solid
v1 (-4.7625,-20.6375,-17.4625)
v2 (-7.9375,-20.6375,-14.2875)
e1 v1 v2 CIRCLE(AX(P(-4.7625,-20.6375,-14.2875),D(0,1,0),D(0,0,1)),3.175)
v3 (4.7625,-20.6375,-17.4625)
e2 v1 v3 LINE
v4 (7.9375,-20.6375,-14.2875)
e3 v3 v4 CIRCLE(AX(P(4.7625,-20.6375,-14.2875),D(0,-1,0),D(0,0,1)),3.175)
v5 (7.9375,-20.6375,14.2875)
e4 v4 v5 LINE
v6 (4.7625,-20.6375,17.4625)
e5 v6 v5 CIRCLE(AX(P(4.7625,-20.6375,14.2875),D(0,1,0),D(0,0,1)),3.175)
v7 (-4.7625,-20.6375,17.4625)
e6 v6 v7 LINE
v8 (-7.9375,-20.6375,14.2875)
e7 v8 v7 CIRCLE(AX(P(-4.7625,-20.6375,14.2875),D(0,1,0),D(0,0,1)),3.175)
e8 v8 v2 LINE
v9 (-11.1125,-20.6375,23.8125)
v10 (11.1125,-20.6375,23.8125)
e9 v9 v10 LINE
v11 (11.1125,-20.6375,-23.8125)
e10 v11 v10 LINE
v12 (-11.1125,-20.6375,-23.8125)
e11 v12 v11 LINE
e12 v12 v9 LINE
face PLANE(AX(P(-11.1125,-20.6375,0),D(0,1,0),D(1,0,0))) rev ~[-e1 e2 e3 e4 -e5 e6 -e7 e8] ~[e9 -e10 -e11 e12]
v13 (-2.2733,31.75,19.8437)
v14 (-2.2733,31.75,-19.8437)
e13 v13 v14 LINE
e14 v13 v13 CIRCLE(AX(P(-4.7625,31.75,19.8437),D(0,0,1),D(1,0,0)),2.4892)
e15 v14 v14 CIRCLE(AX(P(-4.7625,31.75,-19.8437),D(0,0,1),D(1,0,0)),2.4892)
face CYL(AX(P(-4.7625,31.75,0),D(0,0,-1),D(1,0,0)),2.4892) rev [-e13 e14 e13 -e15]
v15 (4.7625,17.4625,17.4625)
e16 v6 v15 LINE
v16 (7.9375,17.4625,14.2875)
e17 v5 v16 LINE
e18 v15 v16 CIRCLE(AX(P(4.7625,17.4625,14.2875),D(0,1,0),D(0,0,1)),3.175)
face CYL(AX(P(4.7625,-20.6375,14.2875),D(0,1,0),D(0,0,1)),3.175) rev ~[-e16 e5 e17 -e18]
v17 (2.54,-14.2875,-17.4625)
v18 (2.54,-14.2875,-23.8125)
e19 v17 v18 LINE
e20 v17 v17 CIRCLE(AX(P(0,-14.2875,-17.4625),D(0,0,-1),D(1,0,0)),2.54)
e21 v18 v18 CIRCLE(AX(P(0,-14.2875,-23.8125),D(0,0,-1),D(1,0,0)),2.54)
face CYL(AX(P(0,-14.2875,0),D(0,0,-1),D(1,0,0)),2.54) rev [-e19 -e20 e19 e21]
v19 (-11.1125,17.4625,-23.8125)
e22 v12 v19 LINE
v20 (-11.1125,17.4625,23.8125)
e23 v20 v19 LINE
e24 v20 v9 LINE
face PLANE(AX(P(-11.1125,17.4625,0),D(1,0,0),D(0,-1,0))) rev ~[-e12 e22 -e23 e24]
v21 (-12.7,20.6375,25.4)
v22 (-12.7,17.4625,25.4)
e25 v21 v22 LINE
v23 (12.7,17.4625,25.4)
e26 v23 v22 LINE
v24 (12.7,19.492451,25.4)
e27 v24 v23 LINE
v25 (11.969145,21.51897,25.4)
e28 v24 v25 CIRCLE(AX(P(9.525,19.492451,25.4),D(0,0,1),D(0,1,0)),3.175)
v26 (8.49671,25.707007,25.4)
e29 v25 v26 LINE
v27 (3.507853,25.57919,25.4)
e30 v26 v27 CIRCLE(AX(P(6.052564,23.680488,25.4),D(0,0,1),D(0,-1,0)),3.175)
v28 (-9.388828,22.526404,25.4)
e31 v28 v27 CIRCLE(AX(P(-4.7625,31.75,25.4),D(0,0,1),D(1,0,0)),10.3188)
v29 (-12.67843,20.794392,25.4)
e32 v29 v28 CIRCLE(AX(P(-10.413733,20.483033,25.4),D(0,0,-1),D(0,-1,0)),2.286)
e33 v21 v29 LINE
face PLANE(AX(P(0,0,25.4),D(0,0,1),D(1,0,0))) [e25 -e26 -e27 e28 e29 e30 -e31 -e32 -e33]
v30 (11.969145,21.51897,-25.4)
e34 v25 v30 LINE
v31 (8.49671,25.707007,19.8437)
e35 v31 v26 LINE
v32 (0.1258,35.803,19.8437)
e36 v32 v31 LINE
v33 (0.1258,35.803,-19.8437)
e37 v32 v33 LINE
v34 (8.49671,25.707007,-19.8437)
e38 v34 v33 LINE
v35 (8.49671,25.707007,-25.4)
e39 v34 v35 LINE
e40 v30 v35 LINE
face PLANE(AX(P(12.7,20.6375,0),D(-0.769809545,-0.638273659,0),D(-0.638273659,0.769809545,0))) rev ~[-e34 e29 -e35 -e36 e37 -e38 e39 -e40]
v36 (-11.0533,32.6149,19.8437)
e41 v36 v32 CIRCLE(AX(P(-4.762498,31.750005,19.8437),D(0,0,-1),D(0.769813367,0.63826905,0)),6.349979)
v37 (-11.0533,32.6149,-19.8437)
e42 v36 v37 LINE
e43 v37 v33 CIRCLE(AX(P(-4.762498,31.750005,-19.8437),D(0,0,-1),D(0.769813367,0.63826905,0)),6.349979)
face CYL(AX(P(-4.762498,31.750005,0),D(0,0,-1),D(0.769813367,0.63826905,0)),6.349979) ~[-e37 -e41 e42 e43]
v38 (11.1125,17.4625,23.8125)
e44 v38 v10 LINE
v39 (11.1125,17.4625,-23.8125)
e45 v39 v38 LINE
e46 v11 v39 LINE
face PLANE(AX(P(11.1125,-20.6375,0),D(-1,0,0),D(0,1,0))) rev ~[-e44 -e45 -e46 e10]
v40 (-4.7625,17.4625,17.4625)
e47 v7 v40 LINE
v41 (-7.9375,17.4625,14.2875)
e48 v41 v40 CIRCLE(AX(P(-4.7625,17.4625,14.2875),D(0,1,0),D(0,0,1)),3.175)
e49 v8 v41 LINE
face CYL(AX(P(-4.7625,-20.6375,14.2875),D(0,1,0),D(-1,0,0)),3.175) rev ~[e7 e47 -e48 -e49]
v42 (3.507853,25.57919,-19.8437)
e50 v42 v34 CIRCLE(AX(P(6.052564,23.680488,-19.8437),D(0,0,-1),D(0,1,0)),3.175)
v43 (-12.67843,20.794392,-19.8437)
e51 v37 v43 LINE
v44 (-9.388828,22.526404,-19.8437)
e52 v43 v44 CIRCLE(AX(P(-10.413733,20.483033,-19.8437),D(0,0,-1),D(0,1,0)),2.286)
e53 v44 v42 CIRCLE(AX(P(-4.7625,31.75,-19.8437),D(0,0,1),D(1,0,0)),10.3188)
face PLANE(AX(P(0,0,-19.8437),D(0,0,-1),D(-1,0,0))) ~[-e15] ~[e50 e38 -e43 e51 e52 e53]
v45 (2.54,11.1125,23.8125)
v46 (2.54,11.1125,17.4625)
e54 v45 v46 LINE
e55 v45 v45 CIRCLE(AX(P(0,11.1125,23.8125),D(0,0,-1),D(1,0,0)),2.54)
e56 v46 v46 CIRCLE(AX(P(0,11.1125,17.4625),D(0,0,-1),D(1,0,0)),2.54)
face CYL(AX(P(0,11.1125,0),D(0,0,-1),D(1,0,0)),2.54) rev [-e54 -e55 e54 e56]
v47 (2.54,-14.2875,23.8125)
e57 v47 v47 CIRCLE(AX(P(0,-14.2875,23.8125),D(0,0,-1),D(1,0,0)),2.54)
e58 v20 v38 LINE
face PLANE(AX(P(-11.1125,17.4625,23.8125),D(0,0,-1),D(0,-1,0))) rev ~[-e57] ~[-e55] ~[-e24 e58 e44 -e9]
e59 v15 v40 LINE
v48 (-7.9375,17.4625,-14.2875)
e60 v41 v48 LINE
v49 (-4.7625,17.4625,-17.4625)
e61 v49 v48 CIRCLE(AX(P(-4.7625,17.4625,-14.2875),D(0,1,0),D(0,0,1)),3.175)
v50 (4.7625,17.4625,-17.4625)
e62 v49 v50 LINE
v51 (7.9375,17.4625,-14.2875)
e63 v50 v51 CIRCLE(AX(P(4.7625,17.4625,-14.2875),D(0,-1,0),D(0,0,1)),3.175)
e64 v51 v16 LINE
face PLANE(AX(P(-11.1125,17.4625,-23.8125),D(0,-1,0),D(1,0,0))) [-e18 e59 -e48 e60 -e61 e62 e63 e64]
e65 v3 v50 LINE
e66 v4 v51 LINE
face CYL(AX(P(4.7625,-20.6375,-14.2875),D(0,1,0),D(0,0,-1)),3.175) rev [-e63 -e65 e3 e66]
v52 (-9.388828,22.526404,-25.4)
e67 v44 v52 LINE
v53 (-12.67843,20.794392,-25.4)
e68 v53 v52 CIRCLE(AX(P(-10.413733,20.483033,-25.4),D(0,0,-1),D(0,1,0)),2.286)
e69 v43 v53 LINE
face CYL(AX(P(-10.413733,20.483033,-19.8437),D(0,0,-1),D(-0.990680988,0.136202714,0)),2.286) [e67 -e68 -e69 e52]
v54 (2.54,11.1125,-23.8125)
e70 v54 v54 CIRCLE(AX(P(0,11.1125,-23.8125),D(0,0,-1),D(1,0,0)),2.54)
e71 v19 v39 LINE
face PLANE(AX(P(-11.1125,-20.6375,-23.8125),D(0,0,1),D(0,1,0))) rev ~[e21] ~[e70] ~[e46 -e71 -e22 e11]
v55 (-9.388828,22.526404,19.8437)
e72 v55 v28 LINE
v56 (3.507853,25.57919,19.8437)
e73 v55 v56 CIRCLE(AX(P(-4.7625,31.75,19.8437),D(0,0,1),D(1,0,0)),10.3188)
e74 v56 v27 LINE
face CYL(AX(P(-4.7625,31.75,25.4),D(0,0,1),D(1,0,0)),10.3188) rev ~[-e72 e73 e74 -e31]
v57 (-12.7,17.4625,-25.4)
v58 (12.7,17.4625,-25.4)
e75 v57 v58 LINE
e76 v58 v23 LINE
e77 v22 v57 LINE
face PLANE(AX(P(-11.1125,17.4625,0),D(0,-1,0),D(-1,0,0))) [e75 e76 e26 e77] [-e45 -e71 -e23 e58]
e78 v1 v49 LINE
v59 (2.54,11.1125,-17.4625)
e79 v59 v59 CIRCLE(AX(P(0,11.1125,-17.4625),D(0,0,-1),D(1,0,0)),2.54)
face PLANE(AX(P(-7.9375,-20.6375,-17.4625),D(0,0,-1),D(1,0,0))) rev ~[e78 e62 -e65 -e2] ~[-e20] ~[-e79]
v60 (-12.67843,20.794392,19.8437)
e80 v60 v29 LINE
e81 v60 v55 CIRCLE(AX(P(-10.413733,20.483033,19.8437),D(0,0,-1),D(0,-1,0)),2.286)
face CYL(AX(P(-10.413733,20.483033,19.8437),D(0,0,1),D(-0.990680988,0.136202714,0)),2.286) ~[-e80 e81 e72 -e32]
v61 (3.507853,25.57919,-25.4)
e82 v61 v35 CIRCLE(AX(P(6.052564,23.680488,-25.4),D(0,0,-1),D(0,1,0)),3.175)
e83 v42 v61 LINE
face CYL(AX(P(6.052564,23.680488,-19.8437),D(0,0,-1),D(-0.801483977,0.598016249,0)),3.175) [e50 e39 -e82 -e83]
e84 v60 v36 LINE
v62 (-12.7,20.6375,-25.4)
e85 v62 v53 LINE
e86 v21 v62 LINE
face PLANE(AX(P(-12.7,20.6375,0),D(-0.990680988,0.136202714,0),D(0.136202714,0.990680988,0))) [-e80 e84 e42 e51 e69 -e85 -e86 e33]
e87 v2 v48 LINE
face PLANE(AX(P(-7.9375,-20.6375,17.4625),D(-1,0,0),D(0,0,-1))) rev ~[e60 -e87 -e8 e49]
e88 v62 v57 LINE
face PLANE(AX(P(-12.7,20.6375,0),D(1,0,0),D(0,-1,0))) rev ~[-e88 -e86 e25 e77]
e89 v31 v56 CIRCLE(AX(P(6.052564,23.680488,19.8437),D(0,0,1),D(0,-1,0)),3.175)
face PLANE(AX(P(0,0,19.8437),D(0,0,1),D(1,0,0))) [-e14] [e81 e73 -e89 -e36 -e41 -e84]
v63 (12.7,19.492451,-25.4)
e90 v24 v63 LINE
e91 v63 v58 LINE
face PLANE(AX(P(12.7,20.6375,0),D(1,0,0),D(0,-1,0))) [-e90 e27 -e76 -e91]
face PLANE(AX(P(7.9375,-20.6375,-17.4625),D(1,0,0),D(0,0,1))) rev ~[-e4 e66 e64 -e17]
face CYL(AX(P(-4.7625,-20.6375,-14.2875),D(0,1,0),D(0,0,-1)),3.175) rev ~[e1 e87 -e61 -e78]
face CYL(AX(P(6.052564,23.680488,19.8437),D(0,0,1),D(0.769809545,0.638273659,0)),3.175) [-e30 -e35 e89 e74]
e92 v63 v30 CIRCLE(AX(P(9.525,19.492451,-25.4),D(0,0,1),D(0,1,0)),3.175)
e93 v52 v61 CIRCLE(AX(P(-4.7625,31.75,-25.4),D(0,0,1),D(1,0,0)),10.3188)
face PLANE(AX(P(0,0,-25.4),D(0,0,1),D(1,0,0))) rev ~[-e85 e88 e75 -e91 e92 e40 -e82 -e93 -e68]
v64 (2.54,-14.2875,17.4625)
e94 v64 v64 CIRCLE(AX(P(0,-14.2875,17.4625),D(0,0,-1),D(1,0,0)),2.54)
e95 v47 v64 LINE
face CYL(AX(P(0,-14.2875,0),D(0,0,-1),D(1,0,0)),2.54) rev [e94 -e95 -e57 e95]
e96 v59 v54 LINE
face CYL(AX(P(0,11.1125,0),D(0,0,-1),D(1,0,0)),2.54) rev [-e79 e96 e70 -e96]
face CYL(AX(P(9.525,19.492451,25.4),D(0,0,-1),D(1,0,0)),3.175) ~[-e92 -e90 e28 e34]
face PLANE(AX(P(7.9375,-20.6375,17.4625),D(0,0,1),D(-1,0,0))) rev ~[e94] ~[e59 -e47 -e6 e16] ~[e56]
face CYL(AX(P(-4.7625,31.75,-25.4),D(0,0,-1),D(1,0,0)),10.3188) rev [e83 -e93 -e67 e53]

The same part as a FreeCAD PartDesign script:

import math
import FreeCAD as App
import Part
import Sketcher
Q = App.Units.Quantity


def edges_at(feature, points):
    """Names of the edges that pass closest to the given points."""
    edges = feature.Shape.Edges
    near = lambda p: min(range(len(edges)), key=lambda i: edges[i].distToShape(Part.Vertex(*p))[0])
    return sorted({f"Edge{near(p) + 1}" for p in points})

doc = App.newDocument("Part")
body = doc.addObject("PartDesign::Body", "Body")

# Sketch on XY plane
sketch1 = body.newObject("Sketcher::SketchObject", "Sketch")
sketch1.AttachmentSupport = (doc.getObject("XY_Plane"), [""])
sketch1.MapMode = "FlatFace"
sketch1.addGeometry([
    Part.LineSegment(App.Vector(-11.1125, 17.4625, 0), App.Vector(-11.1125, -20.6375, 0)),  # 0
    Part.LineSegment(App.Vector(-11.1125, -20.6375, 0), App.Vector(11.1125, -20.6375, 0)),  # 1
    Part.LineSegment(App.Vector(11.1125, -20.6375, 0), App.Vector(11.1125, 17.4625, 0)),  # 2
    Part.LineSegment(App.Vector(11.1125, 17.4625, 0), App.Vector(12.7, 17.4625, 0)),  # 3
    Part.LineSegment(App.Vector(12.7, 17.4625, 0), App.Vector(12.7, 20.6375, 0)),  # 4
    Part.LineSegment(App.Vector(12.7, 20.6375, 0), App.Vector(0.1258, 35.803, 0)),  # 5
    Part.ArcOfCircle(Part.Circle(App.Vector(-4.7625, 31.75, 0), App.Vector(0, 0, 1), 6.349983), math.radians(39.662895), math.radians(172.171683)),  # 6
    Part.LineSegment(App.Vector(-11.0533, 32.6149, 0), App.Vector(-12.7, 20.6375, 0)),  # 7
    Part.LineSegment(App.Vector(-12.7, 20.6375, 0), App.Vector(-12.7, 17.4625, 0)),  # 8
    Part.LineSegment(App.Vector(-12.7, 17.4625, 0), App.Vector(-11.1125, 17.4625, 0)),  # 9
    Part.Circle(App.Vector(0, -14.2875, 0), App.Vector(0, 0, 1), 2.54),  # 10
    Part.Circle(App.Vector(0, 11.1125, 0), App.Vector(0, 0, 1), 2.54),  # 11
    Part.Circle(App.Vector(-4.7625, 31.75, 0), App.Vector(0, 0, 1), 2.4892),  # 12
], False)
sketch1.addConstraint([
    Sketcher.Constraint("Coincident", 0, 2, 1, 1),
    Sketcher.Constraint("Coincident", 1, 2, 2, 1),
    Sketcher.Constraint("Coincident", 2, 2, 3, 1),
    Sketcher.Constraint("Coincident", 3, 2, 4, 1),
    Sketcher.Constraint("Coincident", 4, 2, 5, 1),
    Sketcher.Constraint("Tangent", 5, 2, 6, 1),
    Sketcher.Constraint("Tangent", 6, 2, 7, 1),
    Sketcher.Constraint("Coincident", 7, 2, 8, 1),
    Sketcher.Constraint("Coincident", 8, 2, 9, 1),
    Sketcher.Constraint("Coincident", 9, 2, 0, 1),
    Sketcher.Constraint("Vertical", 0),
    Sketcher.Constraint("Horizontal", 1),
    Sketcher.Constraint("Vertical", 2),
    Sketcher.Constraint("Horizontal", 3),
    Sketcher.Constraint("Vertical", 4),
    Sketcher.Constraint("Vertical", 8),
    Sketcher.Constraint("Horizontal", 9),
    Sketcher.Constraint("Coincident", 12, 3, 6, 3),
    Sketcher.Constraint("Equal", 10, 11),
    Sketcher.Constraint("Symmetric", 4, 2, 7, 2, -2),
    Sketcher.Constraint("Symmetric", 2, 2, 9, 2, -2),
    Sketcher.Constraint("PointOnObject", 10, 3, -2),
    Sketcher.Constraint("PointOnObject", 11, 3, -2),
    Sketcher.Constraint("Diameter", 10, Q("0.2 in")),
    Sketcher.Constraint("Radius", 6, Q("0.25 in")),
    Sketcher.Constraint("Diameter", 12, Q("0.196 in")),
    Sketcher.Constraint("DistanceY", 10, 3, 11, 3, Q("1 in")),
    Sketcher.Constraint("DistanceX", -1, 1, 3, 2, Q("0.5 in")),
    Sketcher.Constraint("DistanceX", 3, 1, 3, 2, Q("0.0625 in")),
    Sketcher.Constraint("DistanceY", 4, 1, 4, 2, Q("0.125 in")),
    Sketcher.Constraint("DistanceY", 0, 2, 10, 3, Q("0.25 in")),
    Sketcher.Constraint("DistanceX", 0, 2, 6, 3, Q("0.25 in")),
    Sketcher.Constraint("DistanceY", 11, 3, 2, 2, Q("0.25 in")),
    Sketcher.Constraint("DistanceY", -1, 1, 11, 3, Q("0.4375 in")),
    Sketcher.Constraint("DistanceY", 4, 2, 6, 3, Q("0.4375 in")),
])
pad1 = body.newObject("PartDesign::Pad", "Pad")
pad1.Profile = sketch1
pad1.Length = Q("2 in")
pad1.Midplane = True

# Sketch on YZ plane
sketch2 = body.newObject("Sketcher::SketchObject", "Sketch001")
sketch2.AttachmentSupport = (doc.getObject("YZ_Plane"), [""])
sketch2.MapMode = "FlatFace"
sketch2.AttachmentOffset = App.Placement(App.Vector(0, 0, -0.4375 * 25.4), App.Rotation())
sketch2.addGeometry([
    Part.LineSegment(App.Vector(17.4625, -25.4, 0), App.Vector(-20.6375, -25.4, 0)),  # 0
    Part.LineSegment(App.Vector(-20.6375, -25.4, 0), App.Vector(-20.6375, -23.8125, 0)),  # 1
    Part.LineSegment(App.Vector(-20.6375, -23.8125, 0), App.Vector(17.4625, -23.8125, 0)),  # 2
    Part.LineSegment(App.Vector(17.4625, -23.8125, 0), App.Vector(17.4625, -25.4, 0)),  # 3
    Part.LineSegment(App.Vector(17.4625, 23.8125, 0), App.Vector(-20.6375, 23.8125, 0)),  # 4
    Part.LineSegment(App.Vector(-20.6375, 23.8125, 0), App.Vector(-20.6375, 25.4, 0)),  # 5
    Part.LineSegment(App.Vector(-20.6375, 25.4, 0), App.Vector(17.4625, 25.4, 0)),  # 6
    Part.LineSegment(App.Vector(17.4625, 25.4, 0), App.Vector(17.4625, 23.8125, 0)),  # 7
], False)
sketch2.addConstraint([
    Sketcher.Constraint("Coincident", 0, 2, 1, 1),
    Sketcher.Constraint("Coincident", 1, 2, 2, 1),
    Sketcher.Constraint("Coincident", 2, 2, 3, 1),
    Sketcher.Constraint("Coincident", 3, 2, 0, 1),
    Sketcher.Constraint("Coincident", 4, 2, 5, 1),
    Sketcher.Constraint("Coincident", 5, 2, 6, 1),
    Sketcher.Constraint("Coincident", 6, 2, 7, 1),
    Sketcher.Constraint("Coincident", 7, 2, 4, 1),
    Sketcher.Constraint("Horizontal", 0),
    Sketcher.Constraint("Vertical", 1),
    Sketcher.Constraint("Horizontal", 2),
    Sketcher.Constraint("Vertical", 3),
    Sketcher.Constraint("Horizontal", 4),
    Sketcher.Constraint("Vertical", 5),
    Sketcher.Constraint("Horizontal", 6),
    Sketcher.Constraint("Vertical", 7),
    Sketcher.Constraint("Symmetric", 1, 2, 4, 2, -1),
    Sketcher.Constraint("Symmetric", 3, 2, 6, 2, -1),
    Sketcher.Constraint("DistanceY", 1, 1, 1, 2, Q("0.0625 in")),
    Sketcher.Constraint("DistanceX", 0, 2, 0, 1, Q("1.5 in")),
    Sketcher.Constraint("DistanceY", 0, 2, -1, 1, Q("1 in")),
    Sketcher.Constraint("DistanceX", 0, 2, -1, 1, Q("0.8125 in")),
])
pocket1 = body.newObject("PartDesign::Pocket", "Pocket")
pocket1.Profile = sketch2
pocket1.Type = "ThroughAll"
pocket1.Reversed = True

# Sketch on XY plane
sketch3 = body.newObject("Sketcher::SketchObject", "Sketch002")
sketch3.AttachmentSupport = (doc.getObject("XY_Plane"), [""])
sketch3.MapMode = "FlatFace"
sketch3.AttachmentOffset = App.Placement(App.Vector(0, 0, 1 * 25.4), App.Rotation())
sketch3.addGeometry([
    Part.Circle(App.Vector(-4.7625, 31.75, 0), App.Vector(0, 0, 1), 10.3188),
    Part.Circle(App.Vector(-4.7625, 31.75, 0), App.Vector(0, 0, 1), 2.4892),
], False)
sketch3.addConstraint([
    Sketcher.Constraint("Coincident", 1, 3, 0, 3),
    Sketcher.Constraint("Diameter", 0, Q("0.8125 in")),
    Sketcher.Constraint("Diameter", 1, Q("0.196 in")),
    Sketcher.Constraint("DistanceY", -1, 1, 0, 3, Q("1.25 in")),
    Sketcher.Constraint("DistanceX", 0, 3, -1, 1, Q("0.1875 in")),
])
pocket2 = body.newObject("PartDesign::Pocket", "Pocket001")
pocket2.Profile = sketch3
pocket2.Length = Q("0.218752 in")
doc.recompute()

mirrored = body.newObject("PartDesign::Mirrored", "Mirrored")
mirrored.Originals = [pocket2]
mirrored.MirrorPlane = (doc.getObject("XY_Plane"), [""])
body.Tip = mirrored
doc.recompute()

fillet = body.newObject("PartDesign::Fillet", "Fillet")
fillet.Base = (mirrored, edges_at(mirrored, [(5.317, 29.542, 22.622), (5.317, 29.542, -22.622), (12.7, 20.637, 0)]))
fillet.Radius = Q("0.125 in")
doc.recompute()

fillet2 = body.newObject("PartDesign::Fillet", "Fillet001")
fillet2.Base = (fillet, edges_at(fillet, [(-12.161, 24.557, -22.622), (-12.161, 24.557, 22.622)]))
fillet2.Radius = Q("0.09 in")

# Sketch on XZ plane
sketch4 = body.newObject("Sketcher::SketchObject", "Sketch003")
sketch4.AttachmentSupport = (doc.getObject("XZ_Plane"), [""])
sketch4.MapMode = "FlatFace"
sketch4.AttachmentOffset = App.Placement(App.Vector(0, 0, 0.8125 * 25.4), App.Rotation())
sketch4.addGeometry([
    Part.LineSegment(App.Vector(7.9375, -17.4625, 0), App.Vector(7.9375, 17.4625, 0)),
    Part.LineSegment(App.Vector(7.9375, 17.4625, 0), App.Vector(-7.9375, 17.4625, 0)),
    Part.LineSegment(App.Vector(-7.9375, 17.4625, 0), App.Vector(-7.9375, -17.4625, 0)),
    Part.LineSegment(App.Vector(-7.9375, -17.4625, 0), App.Vector(7.9375, -17.4625, 0)),
], False)
sketch4.addConstraint([
    Sketcher.Constraint("Coincident", 0, 2, 1, 1),
    Sketcher.Constraint("Coincident", 1, 2, 2, 1),
    Sketcher.Constraint("Coincident", 2, 2, 3, 1),
    Sketcher.Constraint("Coincident", 3, 2, 0, 1),
    Sketcher.Constraint("Vertical", 0),
    Sketcher.Constraint("Horizontal", 1),
    Sketcher.Constraint("Vertical", 2),
    Sketcher.Constraint("Horizontal", 3),
    Sketcher.Constraint("Symmetric", 0, 2, 2, 2, -1, 1),
    Sketcher.Constraint("DistanceX", 1, 2, 1, 1, Q("0.625 in")),
    Sketcher.Constraint("DistanceY", 0, 1, 0, 2, Q("1.375 in")),
])
pocket3 = body.newObject("PartDesign::Pocket", "Pocket002")
pocket3.Profile = sketch4
pocket3.Length = Q("1.5 in")
doc.recompute()

fillet3 = body.newObject("PartDesign::Fillet", "Fillet002")
fillet3.Base = (pocket3, edges_at(pocket3, [
    (-7.938, -1.587, 17.462),
    (7.938, -1.587, 17.462),
    (7.938, -1.587, -17.462),
    (-7.938, -1.587, -17.462),
]))
fillet3.Radius = Q("0.125 in")

doc.recompute()
